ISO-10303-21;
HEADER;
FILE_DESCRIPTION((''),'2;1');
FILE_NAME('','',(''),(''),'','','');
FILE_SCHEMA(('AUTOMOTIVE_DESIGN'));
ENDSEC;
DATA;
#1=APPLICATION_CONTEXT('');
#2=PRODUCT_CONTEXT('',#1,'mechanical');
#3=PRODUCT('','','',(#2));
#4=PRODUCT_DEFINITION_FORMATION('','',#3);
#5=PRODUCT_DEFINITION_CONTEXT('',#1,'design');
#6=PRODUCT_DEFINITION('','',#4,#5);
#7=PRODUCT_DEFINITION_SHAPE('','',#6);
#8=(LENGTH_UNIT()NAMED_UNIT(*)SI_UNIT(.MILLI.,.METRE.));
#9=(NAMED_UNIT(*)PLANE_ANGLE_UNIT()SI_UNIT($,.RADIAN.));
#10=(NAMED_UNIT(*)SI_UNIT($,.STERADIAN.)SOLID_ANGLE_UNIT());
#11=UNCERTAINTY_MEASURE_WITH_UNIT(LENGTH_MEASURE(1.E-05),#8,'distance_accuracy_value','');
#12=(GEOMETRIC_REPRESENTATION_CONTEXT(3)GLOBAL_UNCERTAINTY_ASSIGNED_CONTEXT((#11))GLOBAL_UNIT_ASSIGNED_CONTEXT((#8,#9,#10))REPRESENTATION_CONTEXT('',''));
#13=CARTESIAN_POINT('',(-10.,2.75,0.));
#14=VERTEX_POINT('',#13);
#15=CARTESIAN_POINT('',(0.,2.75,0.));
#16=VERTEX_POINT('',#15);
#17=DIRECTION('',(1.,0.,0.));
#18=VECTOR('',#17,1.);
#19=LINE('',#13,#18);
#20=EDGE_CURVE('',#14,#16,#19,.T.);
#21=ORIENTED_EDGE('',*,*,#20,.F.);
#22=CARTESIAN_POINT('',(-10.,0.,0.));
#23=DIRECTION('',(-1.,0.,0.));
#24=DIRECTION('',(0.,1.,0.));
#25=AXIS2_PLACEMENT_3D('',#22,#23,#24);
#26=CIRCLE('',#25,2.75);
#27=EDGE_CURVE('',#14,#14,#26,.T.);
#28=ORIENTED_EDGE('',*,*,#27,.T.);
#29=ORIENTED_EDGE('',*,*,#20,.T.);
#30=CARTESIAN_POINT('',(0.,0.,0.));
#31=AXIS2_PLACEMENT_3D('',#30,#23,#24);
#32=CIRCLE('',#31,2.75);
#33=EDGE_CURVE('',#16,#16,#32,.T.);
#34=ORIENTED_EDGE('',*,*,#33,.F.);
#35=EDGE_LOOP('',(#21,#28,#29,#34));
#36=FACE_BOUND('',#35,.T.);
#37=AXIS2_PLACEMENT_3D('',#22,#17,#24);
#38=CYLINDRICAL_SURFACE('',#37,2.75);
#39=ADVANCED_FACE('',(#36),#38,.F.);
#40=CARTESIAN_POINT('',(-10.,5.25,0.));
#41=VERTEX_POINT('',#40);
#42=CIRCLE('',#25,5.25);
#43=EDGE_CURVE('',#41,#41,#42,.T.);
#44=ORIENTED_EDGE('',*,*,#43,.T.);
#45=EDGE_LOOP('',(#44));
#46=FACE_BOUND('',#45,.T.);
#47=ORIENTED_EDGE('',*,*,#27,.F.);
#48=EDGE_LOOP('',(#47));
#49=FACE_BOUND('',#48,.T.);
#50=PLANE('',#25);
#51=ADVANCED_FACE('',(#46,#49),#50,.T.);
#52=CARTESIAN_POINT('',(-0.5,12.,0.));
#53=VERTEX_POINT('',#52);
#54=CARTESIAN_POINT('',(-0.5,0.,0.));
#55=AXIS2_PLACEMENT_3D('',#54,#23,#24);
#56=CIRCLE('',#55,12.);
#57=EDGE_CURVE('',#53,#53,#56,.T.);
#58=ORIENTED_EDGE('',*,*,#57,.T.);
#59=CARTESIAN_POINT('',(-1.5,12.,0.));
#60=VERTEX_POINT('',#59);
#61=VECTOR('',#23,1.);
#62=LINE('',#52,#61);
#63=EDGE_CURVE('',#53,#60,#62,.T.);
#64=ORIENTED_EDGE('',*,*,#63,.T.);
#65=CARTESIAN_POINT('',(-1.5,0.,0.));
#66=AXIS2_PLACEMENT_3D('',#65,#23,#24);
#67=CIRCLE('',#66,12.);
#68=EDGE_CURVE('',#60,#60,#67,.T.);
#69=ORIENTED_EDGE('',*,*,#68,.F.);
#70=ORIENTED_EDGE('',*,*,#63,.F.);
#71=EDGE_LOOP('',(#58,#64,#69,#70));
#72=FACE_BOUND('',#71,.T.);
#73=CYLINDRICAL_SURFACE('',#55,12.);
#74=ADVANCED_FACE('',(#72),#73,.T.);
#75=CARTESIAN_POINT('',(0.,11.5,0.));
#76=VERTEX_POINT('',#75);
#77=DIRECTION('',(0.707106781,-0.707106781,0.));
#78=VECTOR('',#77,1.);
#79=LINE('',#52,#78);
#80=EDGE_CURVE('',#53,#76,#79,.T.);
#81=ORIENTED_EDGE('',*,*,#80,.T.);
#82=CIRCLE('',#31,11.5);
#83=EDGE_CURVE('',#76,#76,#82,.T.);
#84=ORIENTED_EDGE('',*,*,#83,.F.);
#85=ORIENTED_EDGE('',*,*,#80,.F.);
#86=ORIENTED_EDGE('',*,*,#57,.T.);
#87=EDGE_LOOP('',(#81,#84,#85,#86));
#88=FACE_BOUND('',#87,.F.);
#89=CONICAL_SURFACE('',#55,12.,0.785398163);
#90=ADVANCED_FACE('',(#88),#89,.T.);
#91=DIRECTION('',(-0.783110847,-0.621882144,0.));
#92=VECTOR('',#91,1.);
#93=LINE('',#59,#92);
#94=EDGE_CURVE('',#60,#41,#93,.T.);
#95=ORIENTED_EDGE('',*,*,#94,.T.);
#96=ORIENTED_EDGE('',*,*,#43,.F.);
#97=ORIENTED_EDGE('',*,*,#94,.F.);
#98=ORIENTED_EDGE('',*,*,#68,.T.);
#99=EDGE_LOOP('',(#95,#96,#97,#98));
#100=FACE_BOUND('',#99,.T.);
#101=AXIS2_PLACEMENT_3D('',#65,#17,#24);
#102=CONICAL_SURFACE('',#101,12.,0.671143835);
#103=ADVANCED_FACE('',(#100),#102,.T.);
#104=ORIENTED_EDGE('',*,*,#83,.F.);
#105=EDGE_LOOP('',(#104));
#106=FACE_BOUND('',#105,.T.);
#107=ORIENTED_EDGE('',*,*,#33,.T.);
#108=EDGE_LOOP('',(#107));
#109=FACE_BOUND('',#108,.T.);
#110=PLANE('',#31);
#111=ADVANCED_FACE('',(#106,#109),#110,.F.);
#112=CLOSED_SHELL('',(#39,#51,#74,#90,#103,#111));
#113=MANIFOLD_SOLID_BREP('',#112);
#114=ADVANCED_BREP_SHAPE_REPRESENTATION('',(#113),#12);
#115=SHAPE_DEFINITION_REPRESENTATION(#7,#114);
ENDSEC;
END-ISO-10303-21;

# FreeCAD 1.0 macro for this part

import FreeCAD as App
import Part
import Sketcher
Q = App.Units.Quantity

doc = App.newDocument("Part")
body = doc.addObject("PartDesign::Body", "Body")

# Sketch on XY plane
sketch1 = body.newObject("Sketcher::SketchObject", "Sketch")
sketch1.AttachmentSupport = (doc.getObject("XY_Plane"), [""])
sketch1.MapMode = "FlatFace"
sketch1.addGeometry([
    Part.LineSegment(App.Vector(-10, 5.25, 0), App.Vector(-10, 2.75, 0)),  # 0
    Part.LineSegment(App.Vector(-10, 2.75, 0), App.Vector(0, 2.75, 0)),  # 1
    Part.LineSegment(App.Vector(0, 2.75, 0), App.Vector(0, 11.5, 0)),  # 2
    Part.LineSegment(App.Vector(0, 11.5, 0), App.Vector(-0.5, 12, 0)),  # 3
    Part.LineSegment(App.Vector(-0.5, 12, 0), App.Vector(-1.5, 12, 0)),  # 4
    Part.LineSegment(App.Vector(-1.5, 12, 0), App.Vector(-10, 5.25, 0)),  # 5
], False)
sketch1.addConstraint([
    Sketcher.Constraint("Coincident", 0, 2, 1, 1),
    Sketcher.Constraint("Coincident", 1, 2, 2, 1),
    Sketcher.Constraint("Coincident", 2, 2, 3, 1),
    Sketcher.Constraint("Coincident", 3, 2, 4, 1),
    Sketcher.Constraint("Coincident", 4, 2, 5, 1),
    Sketcher.Constraint("Coincident", 5, 2, 0, 1),
    Sketcher.Constraint("Vertical", 0),
    Sketcher.Constraint("Horizontal", 1),
    Sketcher.Constraint("Vertical", 2),
    Sketcher.Constraint("Horizontal", 4),
    Sketcher.Constraint("PointOnObject", 1, 2, -2),
    Sketcher.Constraint("DistanceX", 1, 1, 1, 2, Q("10 mm")),
    Sketcher.Constraint("DistanceY", 0, 2, 0, 1, Q("2.5 mm")),
    Sketcher.Constraint("DistanceY", -1, 1, 3, 2, Q("12 mm")),
    Sketcher.Constraint("DistanceX", 3, 2, -1, 1, Q("0.5 mm")),
    Sketcher.Constraint("DistanceX", 4, 2, -1, 1, Q("1.5 mm")),
    Sketcher.Constraint("DistanceY", 2, 2, 3, 2, Q("0.5 mm")),
    Sketcher.Constraint("DistanceY", -1, 1, 0, 2, Q("2.75 mm")),
])
revolution = body.newObject("PartDesign::Revolution", "Revolution")
revolution.Profile = sketch1
revolution.ReferenceAxis = (sketch1, ["H_Axis"])
revolution.Angle = 360

doc.recompute()
